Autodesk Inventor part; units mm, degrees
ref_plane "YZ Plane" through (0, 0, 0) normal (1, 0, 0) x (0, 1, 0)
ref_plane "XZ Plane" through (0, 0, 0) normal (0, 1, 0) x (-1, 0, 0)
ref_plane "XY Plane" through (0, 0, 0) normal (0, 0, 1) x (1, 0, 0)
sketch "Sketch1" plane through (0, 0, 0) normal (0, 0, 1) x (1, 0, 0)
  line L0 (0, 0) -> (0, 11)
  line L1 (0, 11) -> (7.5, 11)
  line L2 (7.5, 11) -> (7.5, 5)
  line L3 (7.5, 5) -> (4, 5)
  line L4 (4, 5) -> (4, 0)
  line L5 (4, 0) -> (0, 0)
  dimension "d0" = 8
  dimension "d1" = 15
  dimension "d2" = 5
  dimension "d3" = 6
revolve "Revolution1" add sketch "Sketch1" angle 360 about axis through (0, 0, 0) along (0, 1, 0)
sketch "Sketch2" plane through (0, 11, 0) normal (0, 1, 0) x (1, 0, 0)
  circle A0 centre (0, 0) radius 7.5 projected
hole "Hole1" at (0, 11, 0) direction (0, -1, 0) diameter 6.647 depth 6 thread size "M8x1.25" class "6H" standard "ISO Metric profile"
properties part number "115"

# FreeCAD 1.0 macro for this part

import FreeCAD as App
import Part
import Sketcher

V = App.Vector
Q = App.Units.Quantity

doc = App.newDocument("Part")
params = doc.addObject("Spreadsheet::Sheet", "Params")
for row, (alias, value) in enumerate([
    ("sketch1_height", "5 mm"),
    ("sketch1_height2", "6 mm"),
    ("sketch1_width", "4 mm"),
    ("sketch1_width2", "3.5 mm"),
    ("revolution_angle", "360 deg"),
    ("hole_diameter", "6.647 mm"),
    ("hole_depth", "6 mm"),
], start=1):
    params.set(f"A{row}", alias)
    params.set(f"B{row}", "=" + value)
    params.setAlias(f"B{row}", alias)

body = doc.addObject("PartDesign::Body", "Body")

# Sketch on XY plane
sketch1 = body.newObject("Sketcher::SketchObject", "Sketch")
sketch1.AttachmentSupport = (doc.getObject("XY_Plane"), [""])
sketch1.MapMode = "FlatFace"
sketch1.addGeometry([
    Part.LineSegment(V(0, 11, 0), V(0, 0, 0)),  # 0
    Part.LineSegment(V(0, 0, 0), V(4, 0, 0)),  # 1
    Part.LineSegment(V(4, 0, 0), V(4, 5, 0)),  # 2
    Part.LineSegment(V(4, 5, 0), V(7.5, 5, 0)),  # 3
    Part.LineSegment(V(7.5, 5, 0), V(7.5, 11, 0)),  # 4
    Part.LineSegment(V(7.5, 11, 0), V(0, 11, 0)),  # 5
], False)
sketch1.addConstraint([
    Sketcher.Constraint("Coincident", 0, 2, 1, 1),
    Sketcher.Constraint("Coincident", 1, 2, 2, 1),
    Sketcher.Constraint("Coincident", 2, 2, 3, 1),
    Sketcher.Constraint("Coincident", 3, 2, 4, 1),
    Sketcher.Constraint("Coincident", 4, 2, 5, 1),
    Sketcher.Constraint("Coincident", 5, 2, 0, 1),
    Sketcher.Constraint("Vertical", 0),
    Sketcher.Constraint("Horizontal", 1),
    Sketcher.Constraint("Vertical", 2),
    Sketcher.Constraint("Horizontal", 3),
    Sketcher.Constraint("Vertical", 4),
    Sketcher.Constraint("Horizontal", 5),
    Sketcher.Constraint("Coincident", 0, 2, -1, 1),
    Sketcher.Constraint("DistanceY", 2, 1, 2, 2, Q("5 mm")),
    Sketcher.Constraint("DistanceY", 4, 1, 4, 2, Q("6 mm")),
    Sketcher.Constraint("DistanceX", 1, 1, 1, 2, Q("4 mm")),
    Sketcher.Constraint("DistanceX", 3, 1, 3, 2, Q("3.5 mm")),
])
sketch1.setExpression("Constraints[13]", "Params.sketch1_height")
sketch1.setExpression("Constraints[14]", "Params.sketch1_height2")
sketch1.setExpression("Constraints[15]", "Params.sketch1_width")
sketch1.setExpression("Constraints[16]", "Params.sketch1_width2")
revolution = body.newObject("PartDesign::Revolution", "Revolution")
revolution.Profile = sketch1
revolution.ReferenceAxis = (sketch1, ["V_Axis"])
revolution.setExpression("Angle", "Params.revolution_angle")

# Sketch on XZ plane
sketch2 = body.newObject("Sketcher::SketchObject", "Sketch001")
sketch2.AttachmentSupport = (doc.getObject("XZ_Plane"), [""])
sketch2.MapMode = "FlatFace"
sketch2.AttachmentOffset = App.Placement(V(0, 0, -11), App.Rotation())
sketch2.addGeometry(Part.Circle(V(0, 0, 0), V(0, 0, 1), 3.3235), False)
sketch2.addConstraint([
    Sketcher.Constraint("Coincident", 0, 3, -1, 1),
    Sketcher.Constraint("Diameter", 0, Q("6.647 mm")),
])
doc.recompute()
hole = body.newObject("PartDesign::Hole", "Hole")
hole.Profile = sketch2
hole.ThreadType = "None"
hole.setExpression("Diameter", "Params.hole_diameter")
hole.DepthType = "Dimension"
hole.setExpression("Depth", "Params.hole_depth")
hole.DrillPoint = "Flat"
hole.Reversed = True

doc.recompute()
